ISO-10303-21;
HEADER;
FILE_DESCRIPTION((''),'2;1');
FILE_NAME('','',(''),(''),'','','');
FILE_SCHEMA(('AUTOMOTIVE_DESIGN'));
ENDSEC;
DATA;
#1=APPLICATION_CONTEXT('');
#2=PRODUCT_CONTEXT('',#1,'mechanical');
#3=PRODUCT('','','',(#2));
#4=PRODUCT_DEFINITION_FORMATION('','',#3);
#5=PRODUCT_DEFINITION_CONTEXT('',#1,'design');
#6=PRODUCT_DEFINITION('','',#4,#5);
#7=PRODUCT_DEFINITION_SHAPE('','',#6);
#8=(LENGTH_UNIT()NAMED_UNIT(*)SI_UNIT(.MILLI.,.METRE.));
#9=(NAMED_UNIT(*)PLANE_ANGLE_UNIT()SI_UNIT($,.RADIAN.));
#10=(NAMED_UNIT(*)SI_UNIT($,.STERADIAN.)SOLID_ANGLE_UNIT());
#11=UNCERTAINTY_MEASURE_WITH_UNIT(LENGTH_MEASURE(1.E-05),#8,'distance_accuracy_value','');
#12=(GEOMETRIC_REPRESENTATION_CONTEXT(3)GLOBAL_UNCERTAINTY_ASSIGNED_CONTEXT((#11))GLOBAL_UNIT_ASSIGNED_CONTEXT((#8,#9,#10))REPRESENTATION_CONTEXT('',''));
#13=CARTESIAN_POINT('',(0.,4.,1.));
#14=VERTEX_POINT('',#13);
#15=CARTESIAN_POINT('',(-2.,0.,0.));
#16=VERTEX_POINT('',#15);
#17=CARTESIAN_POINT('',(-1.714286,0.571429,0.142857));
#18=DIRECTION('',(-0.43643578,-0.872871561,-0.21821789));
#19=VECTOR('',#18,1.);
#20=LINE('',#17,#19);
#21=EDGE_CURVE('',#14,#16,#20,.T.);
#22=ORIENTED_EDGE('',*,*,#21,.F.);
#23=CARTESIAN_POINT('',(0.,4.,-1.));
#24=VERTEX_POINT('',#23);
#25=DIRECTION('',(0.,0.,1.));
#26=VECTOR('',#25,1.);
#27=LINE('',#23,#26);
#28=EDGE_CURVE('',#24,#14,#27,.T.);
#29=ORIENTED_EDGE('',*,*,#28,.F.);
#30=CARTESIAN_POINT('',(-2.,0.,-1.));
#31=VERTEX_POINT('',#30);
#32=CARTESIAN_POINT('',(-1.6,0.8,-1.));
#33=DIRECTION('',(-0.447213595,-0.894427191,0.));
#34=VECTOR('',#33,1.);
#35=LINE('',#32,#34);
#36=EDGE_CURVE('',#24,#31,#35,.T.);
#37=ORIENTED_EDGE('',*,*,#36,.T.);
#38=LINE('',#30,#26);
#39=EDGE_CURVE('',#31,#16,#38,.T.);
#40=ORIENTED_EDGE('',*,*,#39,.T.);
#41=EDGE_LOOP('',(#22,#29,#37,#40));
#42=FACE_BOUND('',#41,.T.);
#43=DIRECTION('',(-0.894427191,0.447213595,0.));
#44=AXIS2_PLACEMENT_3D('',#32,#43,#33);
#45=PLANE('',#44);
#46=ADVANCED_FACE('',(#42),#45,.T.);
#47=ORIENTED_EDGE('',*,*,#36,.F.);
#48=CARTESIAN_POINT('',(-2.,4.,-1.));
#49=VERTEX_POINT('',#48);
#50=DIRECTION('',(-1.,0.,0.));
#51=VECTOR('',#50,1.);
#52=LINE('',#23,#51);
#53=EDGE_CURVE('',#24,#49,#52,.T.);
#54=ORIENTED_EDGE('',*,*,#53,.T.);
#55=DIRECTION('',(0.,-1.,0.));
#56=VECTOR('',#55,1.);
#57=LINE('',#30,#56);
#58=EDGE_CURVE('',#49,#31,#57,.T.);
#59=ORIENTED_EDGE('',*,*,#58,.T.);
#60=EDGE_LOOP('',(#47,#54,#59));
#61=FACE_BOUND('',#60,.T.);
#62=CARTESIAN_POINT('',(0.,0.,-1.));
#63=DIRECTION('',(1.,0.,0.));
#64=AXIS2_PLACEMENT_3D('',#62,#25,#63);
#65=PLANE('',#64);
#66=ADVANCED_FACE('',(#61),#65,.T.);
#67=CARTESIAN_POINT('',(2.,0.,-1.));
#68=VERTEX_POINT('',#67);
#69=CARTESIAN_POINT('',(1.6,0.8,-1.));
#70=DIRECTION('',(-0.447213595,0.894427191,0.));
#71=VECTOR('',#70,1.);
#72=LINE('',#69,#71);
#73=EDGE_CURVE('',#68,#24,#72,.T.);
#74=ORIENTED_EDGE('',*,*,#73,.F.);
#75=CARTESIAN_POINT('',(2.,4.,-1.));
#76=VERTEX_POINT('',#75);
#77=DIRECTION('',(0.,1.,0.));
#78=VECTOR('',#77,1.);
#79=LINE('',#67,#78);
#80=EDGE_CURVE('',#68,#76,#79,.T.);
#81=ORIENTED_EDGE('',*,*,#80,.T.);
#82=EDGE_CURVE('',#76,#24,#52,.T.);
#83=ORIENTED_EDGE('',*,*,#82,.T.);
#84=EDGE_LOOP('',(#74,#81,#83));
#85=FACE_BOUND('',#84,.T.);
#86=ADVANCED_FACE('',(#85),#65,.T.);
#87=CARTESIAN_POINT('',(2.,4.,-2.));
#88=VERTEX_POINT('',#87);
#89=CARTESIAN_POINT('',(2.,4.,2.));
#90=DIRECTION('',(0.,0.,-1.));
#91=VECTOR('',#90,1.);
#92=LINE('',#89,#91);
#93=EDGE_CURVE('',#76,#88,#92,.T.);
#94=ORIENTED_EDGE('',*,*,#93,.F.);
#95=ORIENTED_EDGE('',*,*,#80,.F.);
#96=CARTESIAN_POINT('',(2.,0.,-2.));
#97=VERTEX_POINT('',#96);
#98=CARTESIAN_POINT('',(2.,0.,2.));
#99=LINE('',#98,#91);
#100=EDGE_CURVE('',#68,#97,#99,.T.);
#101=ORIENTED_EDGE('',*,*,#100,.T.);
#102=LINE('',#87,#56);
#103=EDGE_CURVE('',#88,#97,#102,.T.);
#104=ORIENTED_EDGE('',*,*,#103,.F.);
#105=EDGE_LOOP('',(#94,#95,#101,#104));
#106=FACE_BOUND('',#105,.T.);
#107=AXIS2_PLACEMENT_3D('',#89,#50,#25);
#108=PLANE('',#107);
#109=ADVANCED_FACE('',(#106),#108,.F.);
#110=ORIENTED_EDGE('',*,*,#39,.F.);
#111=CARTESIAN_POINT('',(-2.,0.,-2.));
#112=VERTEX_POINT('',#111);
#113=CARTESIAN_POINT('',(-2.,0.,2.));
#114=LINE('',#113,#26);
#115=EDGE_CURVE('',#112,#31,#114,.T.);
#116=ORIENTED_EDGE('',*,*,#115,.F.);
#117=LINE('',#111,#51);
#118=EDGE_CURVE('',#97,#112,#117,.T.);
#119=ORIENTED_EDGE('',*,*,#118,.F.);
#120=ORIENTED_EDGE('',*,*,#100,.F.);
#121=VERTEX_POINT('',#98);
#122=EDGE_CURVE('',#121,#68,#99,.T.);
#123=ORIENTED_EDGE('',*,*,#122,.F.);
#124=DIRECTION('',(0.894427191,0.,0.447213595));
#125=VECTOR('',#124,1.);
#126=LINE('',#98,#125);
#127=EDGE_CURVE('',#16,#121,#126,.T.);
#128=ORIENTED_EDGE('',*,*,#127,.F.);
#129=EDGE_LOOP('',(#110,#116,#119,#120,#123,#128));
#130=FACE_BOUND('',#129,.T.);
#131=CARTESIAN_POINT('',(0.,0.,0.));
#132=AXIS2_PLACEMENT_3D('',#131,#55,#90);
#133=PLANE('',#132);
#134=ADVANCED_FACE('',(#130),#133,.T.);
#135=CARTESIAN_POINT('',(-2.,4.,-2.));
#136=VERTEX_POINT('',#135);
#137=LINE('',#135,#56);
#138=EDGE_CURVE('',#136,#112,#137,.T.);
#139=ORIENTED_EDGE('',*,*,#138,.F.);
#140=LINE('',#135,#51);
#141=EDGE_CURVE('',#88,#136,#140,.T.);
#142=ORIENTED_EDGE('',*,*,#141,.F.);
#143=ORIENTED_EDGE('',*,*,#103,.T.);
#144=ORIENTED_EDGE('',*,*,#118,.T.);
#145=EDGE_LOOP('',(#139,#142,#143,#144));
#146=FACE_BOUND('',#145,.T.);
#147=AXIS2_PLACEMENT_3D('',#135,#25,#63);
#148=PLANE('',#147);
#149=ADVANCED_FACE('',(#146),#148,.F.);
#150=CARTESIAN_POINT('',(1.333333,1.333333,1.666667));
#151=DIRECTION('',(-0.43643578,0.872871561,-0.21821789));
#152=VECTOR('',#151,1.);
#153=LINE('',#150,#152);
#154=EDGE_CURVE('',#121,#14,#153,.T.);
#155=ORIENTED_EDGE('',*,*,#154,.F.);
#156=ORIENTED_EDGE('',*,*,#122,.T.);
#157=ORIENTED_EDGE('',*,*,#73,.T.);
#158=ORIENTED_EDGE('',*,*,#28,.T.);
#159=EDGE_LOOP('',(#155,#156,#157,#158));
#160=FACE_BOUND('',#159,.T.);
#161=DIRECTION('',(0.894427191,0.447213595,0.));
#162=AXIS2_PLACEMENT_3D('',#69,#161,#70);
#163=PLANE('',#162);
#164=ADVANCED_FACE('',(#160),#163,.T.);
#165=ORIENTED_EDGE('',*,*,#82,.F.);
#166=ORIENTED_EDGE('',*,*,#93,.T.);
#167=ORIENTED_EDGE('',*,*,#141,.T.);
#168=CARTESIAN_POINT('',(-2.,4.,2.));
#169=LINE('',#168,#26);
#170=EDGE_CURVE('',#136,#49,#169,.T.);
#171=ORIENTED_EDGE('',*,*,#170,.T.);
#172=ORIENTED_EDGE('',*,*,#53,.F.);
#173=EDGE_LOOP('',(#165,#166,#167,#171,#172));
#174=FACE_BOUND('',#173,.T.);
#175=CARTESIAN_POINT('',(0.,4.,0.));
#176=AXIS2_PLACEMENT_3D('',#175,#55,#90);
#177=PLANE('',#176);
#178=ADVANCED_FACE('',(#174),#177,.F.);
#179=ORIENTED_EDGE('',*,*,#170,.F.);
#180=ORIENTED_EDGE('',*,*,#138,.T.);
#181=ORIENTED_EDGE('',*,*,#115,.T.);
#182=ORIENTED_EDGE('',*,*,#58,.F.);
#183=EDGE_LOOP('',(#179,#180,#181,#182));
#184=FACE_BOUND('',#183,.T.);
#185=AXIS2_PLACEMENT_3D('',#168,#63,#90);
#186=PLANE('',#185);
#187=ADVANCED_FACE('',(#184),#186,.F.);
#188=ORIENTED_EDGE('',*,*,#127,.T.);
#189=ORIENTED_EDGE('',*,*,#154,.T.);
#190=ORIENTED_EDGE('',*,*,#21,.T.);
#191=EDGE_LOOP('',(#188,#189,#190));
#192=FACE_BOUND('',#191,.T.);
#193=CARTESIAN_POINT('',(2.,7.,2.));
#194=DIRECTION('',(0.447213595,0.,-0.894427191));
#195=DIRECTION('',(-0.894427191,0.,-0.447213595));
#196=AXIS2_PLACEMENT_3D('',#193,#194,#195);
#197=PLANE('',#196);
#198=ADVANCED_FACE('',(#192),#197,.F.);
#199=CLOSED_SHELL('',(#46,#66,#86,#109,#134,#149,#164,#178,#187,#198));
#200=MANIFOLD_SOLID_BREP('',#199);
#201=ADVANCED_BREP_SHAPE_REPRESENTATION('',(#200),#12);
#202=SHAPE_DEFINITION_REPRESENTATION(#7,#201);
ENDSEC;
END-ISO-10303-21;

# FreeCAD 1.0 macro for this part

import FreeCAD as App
import Part
import Sketcher

V = App.Vector
Q = App.Units.Quantity


def add_polygon(sketch, points):
    """Adds a closed chain of lines whose ends are joined by coincident constraints."""
    first, n = sketch.GeometryCount, len(points)
    for a, b in zip(points, points[1:] + points[:1]):
        sketch.addGeometry(Part.LineSegment(App.Vector(*a, 0), App.Vector(*b, 0)), False)
    for i in range(n):
        sketch.addConstraint(Sketcher.Constraint("Coincident", first + i, 2, first + (i + 1) % n, 1))

doc = App.newDocument("Part")
body = doc.addObject("PartDesign::Body", "Body")

# Sketch on XZ plane
sketch1 = body.newObject("Sketcher::SketchObject", "Sketch")
sketch1.AttachmentSupport = (doc.getObject("XZ_Plane"), [""])
sketch1.MapMode = "FlatFace"
add_polygon(sketch1, [(-2, -2), (-2, 2), (2, 2), (2, -2)])  # lines 0-3
sketch1.addConstraint([
    Sketcher.Constraint("Vertical", 0),
    Sketcher.Constraint("Horizontal", 1),
    Sketcher.Constraint("Vertical", 2),
    Sketcher.Constraint("Horizontal", 3),
    Sketcher.Constraint("Symmetric", 0, 2, 2, 2, -1, 1),
    Sketcher.Constraint("Equal", 3, 0),
    Sketcher.Constraint("DistanceX", 1, 1, 1, 2, Q("4 mm")),
])
pad1 = body.newObject("PartDesign::Pad", "Pad")
pad1.Profile = sketch1
pad1.Length = 4
pad1.Reversed = True

# Sketch on XY plane
sketch2 = body.newObject("Sketcher::SketchObject", "Sketch001")
sketch2.AttachmentSupport = (doc.getObject("XY_Plane"), [""])
sketch2.MapMode = "FlatFace"
sketch2.AttachmentOffset = App.Placement(V(0, 0, 2), App.Rotation())
add_polygon(sketch2, [(2, 4), (0, 4), (2, 0)])  # lines 0-2
add_polygon(sketch2, [(-2, 4), (-2, 0), (0, 4)])  # lines 3-5
sketch2.addConstraint([
    Sketcher.Constraint("Horizontal", 0),
    Sketcher.Constraint("Vertical", 2),
    Sketcher.Constraint("Vertical", 3),
    Sketcher.Constraint("Horizontal", 5),
    Sketcher.Constraint("Coincident", 4, 2, 0, 2),
    Sketcher.Constraint("Symmetric", 1, 2, 3, 2, -1, 1),
    Sketcher.Constraint("PointOnObject", 0, 2, -2),
    Sketcher.Constraint("PointOnObject", 1, 2, -1),
    Sketcher.Constraint("DistanceX", 0, 2, 0, 1, Q("2 mm")),
    Sketcher.Constraint("DistanceY", 2, 1, 2, 2, Q("4 mm")),
])
pocket1 = body.newObject("PartDesign::Pocket", "Pocket")
pocket1.Profile = sketch2
pocket1.Length = 3

# Sketch on XZ plane
sketch3 = body.newObject("Sketcher::SketchObject", "Sketch002")
sketch3.AttachmentSupport = (doc.getObject("XZ_Plane"), [""])
sketch3.MapMode = "FlatFace"
add_polygon(sketch3, [(-2, 0), (2, 2), (-2, 2)])  # lines 0-2
sketch3.addConstraint([
    Sketcher.Constraint("Horizontal", 1),
    Sketcher.Constraint("Vertical", 2),
    Sketcher.Constraint("PointOnObject", 2, 2, -1),
    Sketcher.Constraint("DistanceX", 1, 2, 1, 1, Q("4 mm")),
    Sketcher.Constraint("DistanceY", 2, 2, 2, 1, Q("2 mm")),
    Sketcher.Constraint("DistanceX", -1, 1, 0, 2, Q("2 mm")),
])
pocket2 = body.newObject("PartDesign::Pocket", "Pocket001")
pocket2.Profile = sketch3
pocket2.Length = 7

doc.recompute()
